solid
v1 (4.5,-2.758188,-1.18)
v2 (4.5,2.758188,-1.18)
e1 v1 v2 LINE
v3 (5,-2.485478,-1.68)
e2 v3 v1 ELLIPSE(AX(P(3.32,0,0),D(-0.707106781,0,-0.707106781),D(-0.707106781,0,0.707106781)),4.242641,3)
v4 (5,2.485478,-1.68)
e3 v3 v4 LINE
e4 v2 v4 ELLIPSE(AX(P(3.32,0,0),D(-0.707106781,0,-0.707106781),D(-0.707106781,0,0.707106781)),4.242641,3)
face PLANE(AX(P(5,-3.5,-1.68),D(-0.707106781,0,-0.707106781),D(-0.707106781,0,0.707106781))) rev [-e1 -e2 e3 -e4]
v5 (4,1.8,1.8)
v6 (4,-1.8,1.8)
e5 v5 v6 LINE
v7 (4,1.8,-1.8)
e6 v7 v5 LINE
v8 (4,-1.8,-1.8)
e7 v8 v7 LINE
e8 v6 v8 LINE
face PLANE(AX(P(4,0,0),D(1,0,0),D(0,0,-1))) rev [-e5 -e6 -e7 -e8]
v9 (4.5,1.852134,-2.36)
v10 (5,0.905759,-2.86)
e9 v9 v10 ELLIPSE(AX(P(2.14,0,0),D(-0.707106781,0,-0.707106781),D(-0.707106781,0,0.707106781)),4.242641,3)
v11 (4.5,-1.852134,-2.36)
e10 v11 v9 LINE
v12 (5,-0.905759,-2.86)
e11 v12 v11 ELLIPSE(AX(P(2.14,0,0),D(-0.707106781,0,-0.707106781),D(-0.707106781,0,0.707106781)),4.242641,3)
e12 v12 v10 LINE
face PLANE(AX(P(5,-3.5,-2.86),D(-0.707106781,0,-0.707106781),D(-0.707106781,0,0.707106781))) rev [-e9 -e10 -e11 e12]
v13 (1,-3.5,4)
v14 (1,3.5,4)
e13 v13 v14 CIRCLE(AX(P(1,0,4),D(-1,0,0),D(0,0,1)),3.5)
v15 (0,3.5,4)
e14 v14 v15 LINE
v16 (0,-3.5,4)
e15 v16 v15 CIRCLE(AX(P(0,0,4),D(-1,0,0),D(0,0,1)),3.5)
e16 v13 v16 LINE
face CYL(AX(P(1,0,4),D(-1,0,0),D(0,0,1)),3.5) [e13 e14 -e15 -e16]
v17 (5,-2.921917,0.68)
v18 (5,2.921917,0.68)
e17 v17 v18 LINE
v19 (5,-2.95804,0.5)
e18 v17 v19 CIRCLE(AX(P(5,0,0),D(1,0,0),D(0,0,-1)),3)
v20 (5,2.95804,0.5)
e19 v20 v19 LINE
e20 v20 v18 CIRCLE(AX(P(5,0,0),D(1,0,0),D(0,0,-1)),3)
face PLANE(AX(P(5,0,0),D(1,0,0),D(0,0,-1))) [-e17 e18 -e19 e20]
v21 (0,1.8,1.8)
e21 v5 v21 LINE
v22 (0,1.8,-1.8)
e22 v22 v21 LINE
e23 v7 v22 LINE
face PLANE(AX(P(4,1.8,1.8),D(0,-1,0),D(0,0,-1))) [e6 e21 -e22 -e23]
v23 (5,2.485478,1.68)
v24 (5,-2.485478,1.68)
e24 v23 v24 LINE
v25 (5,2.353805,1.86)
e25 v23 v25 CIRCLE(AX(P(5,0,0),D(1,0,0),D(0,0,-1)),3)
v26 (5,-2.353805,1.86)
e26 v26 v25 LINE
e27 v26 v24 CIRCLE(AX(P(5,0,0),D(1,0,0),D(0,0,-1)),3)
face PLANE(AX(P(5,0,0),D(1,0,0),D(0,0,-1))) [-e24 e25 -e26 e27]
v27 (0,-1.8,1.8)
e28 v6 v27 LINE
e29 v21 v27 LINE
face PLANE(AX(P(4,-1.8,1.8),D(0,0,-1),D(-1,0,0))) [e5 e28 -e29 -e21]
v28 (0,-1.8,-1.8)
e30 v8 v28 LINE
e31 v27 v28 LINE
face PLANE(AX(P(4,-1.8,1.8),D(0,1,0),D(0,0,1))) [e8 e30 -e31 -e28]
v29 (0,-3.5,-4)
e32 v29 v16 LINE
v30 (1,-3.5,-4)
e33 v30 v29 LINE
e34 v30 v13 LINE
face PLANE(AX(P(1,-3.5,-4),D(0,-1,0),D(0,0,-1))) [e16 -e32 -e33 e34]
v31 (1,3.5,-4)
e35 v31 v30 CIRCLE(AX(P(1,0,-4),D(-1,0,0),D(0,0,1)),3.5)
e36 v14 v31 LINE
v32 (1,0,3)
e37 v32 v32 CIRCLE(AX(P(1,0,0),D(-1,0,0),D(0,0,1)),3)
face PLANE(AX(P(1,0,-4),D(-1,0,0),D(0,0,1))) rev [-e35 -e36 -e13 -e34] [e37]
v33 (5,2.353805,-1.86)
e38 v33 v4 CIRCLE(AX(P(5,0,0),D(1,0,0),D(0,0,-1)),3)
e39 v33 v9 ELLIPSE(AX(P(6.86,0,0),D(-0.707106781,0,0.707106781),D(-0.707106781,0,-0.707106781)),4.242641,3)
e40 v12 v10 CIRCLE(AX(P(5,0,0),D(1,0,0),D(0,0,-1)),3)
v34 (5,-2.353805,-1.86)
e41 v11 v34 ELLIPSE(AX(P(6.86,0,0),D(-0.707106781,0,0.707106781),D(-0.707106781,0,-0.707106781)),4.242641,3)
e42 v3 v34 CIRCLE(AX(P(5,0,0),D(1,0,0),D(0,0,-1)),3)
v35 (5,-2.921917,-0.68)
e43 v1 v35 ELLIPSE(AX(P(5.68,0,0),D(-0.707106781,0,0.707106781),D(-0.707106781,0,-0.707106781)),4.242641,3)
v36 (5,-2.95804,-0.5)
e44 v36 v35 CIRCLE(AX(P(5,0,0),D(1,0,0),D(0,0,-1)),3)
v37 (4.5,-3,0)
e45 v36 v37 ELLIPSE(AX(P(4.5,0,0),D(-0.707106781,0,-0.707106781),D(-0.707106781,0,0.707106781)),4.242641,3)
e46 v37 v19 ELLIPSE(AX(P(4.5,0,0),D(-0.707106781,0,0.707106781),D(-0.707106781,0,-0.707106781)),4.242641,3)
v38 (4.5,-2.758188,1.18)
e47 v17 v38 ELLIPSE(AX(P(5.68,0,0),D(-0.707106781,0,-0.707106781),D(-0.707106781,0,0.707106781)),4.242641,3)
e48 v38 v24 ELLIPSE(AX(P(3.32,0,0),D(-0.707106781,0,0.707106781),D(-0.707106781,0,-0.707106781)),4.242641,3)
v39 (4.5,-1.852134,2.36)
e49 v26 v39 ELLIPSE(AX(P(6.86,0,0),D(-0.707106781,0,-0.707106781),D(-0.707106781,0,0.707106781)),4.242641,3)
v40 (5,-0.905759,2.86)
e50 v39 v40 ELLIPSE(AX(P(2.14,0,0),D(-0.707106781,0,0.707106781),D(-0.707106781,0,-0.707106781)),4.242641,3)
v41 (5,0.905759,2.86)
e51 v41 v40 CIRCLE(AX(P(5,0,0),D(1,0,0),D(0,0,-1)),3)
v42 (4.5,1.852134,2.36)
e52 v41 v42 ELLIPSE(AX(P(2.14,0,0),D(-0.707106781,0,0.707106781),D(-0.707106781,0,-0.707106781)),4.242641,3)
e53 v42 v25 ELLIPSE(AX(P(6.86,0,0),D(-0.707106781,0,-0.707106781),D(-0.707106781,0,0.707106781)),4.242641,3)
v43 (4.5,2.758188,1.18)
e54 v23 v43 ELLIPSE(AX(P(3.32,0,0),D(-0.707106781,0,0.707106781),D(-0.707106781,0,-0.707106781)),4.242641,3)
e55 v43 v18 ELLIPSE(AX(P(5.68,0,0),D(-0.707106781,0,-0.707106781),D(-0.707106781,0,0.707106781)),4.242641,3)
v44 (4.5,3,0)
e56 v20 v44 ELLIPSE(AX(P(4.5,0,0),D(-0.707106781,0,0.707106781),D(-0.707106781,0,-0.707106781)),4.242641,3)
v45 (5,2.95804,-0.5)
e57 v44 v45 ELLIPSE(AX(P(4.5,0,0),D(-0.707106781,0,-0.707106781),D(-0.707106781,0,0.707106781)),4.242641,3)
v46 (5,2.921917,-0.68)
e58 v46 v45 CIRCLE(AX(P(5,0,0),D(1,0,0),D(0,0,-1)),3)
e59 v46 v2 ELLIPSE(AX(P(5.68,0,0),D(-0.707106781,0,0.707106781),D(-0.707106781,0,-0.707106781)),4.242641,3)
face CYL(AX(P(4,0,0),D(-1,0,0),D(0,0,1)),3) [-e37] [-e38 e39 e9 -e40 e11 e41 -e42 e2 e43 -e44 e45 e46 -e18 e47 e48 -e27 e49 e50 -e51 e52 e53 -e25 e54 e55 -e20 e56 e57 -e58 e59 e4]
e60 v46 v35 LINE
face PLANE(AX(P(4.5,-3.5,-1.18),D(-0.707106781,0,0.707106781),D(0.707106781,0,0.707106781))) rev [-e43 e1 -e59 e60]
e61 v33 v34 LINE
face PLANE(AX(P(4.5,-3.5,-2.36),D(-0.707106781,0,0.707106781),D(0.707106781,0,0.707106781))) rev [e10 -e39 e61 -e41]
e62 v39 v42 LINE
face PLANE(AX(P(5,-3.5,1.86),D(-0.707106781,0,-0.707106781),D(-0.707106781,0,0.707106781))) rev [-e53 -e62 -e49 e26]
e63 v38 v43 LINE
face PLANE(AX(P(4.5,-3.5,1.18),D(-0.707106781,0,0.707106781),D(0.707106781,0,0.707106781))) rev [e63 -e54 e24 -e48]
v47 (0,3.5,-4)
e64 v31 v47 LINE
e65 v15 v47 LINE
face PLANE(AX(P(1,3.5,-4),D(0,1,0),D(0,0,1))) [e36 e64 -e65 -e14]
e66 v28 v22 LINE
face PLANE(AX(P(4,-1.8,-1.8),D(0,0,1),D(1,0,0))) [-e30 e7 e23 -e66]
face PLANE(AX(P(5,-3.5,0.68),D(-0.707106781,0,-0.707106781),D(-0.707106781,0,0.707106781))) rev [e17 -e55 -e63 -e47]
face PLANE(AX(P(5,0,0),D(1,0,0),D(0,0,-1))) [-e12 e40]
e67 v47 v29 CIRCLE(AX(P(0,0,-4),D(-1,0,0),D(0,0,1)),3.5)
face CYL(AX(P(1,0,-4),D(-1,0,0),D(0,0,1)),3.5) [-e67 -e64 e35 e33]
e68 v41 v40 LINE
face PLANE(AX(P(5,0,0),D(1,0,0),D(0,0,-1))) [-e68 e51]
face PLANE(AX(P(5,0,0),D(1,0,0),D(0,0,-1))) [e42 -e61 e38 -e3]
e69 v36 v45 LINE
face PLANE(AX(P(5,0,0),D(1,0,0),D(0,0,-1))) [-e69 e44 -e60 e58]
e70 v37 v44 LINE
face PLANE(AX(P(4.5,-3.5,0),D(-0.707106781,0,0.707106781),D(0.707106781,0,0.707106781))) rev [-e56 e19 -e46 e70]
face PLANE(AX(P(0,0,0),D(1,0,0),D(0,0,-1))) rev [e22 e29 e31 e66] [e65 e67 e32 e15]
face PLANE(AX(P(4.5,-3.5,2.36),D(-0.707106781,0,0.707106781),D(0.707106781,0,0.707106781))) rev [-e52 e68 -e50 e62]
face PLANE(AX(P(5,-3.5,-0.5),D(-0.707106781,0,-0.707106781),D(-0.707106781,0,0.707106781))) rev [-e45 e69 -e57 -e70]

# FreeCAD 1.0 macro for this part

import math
import FreeCAD as App
import Part
import Sketcher
Q = App.Units.Quantity


def add_polygon(sketch, points):
    """Adds a closed chain of lines whose ends are joined by coincident constraints."""
    first, n = sketch.GeometryCount, len(points)
    for a, b in zip(points, points[1:] + points[:1]):
        sketch.addGeometry(Part.LineSegment(App.Vector(*a, 0), App.Vector(*b, 0)), False)
    for i in range(n):
        sketch.addConstraint(Sketcher.Constraint("Coincident", first + i, 2, first + (i + 1) % n, 1))

doc = App.newDocument("Part")
params = doc.addObject("Spreadsheet::Sheet", "Params")
for row, (alias, value) in enumerate([
    ("sketch1_diameter", "6 mm"),
    ("sketch1_width", "3.6 mm"),
    ("pad1_length", "4 mm"),
    ("sketch2_radius", "3.5 mm"),
    ("sketch2_height", "8 mm"),
    ("sketch2_width", "3.6 mm"),
    ("pad2_length", "1 mm"),
    ("sketch3_diameter", "6 mm"),
    ("pad3_length", "1 mm"),
    ("sketch4_height", "1 mm"),
], start=1):
    params.set(f"A{row}", alias)
    params.set(f"B{row}", "=" + value)
    params.setAlias(f"B{row}", alias)

body = doc.addObject("PartDesign::Body", "Body")

sketch1 = body.newObject("Sketcher::SketchObject", "Sketch")
sketch1.AttachmentSupport = (doc.getObject("YZ_Plane"), [""])
sketch1.MapMode = "FlatFace"
sketch1.addGeometry(Part.Circle(App.Vector(0, 0, 0), App.Vector(0, 0, 1), 3), False)
add_polygon(sketch1, [(-1.8, -1.8), (-1.8, 1.8), (1.8, 1.8), (1.8, -1.8)])
sketch1.addConstraint(Sketcher.Constraint("Vertical", 1))
sketch1.addConstraint(Sketcher.Constraint("Horizontal", 2))
sketch1.addConstraint(Sketcher.Constraint("Vertical", 3))
sketch1.addConstraint(Sketcher.Constraint("Horizontal", 4))
sketch1.addConstraint(Sketcher.Constraint("Coincident", 0, 3, -1, 1))
sketch1.addConstraint(Sketcher.Constraint("Symmetric", 1, 2, 3, 2, -1, 1))
sketch1.addConstraint(Sketcher.Constraint("Equal", 4, 1))
sketch1.addConstraint(Sketcher.Constraint("Diameter", 0, Q("6 mm")))
sketch1.addConstraint(Sketcher.Constraint("DistanceX", 2, 1, 2, 2, Q("3.6 mm")))
sketch1.setExpression("Constraints[11]", "Params.sketch1_diameter")
sketch1.setExpression("Constraints[12]", "Params.sketch1_width")
pad1 = body.newObject("PartDesign::Pad", "Pad")
pad1.Profile = sketch1
pad1.setExpression("Length", "Params.pad1_length")

sketch2 = body.newObject("Sketcher::SketchObject", "Sketch001")
sketch2.AttachmentSupport = (doc.getObject("YZ_Plane"), [""])
sketch2.MapMode = "FlatFace"
sketch2.addGeometry(Part.LineSegment(App.Vector(3.5, 4, 0), App.Vector(3.5, -4, 0)), False)
sketch2.addGeometry(Part.ArcOfCircle(Part.Circle(App.Vector(0, -4, 0), App.Vector(0, 0, 1), 3.5), math.radians(180), math.radians(360)), False)
sketch2.addGeometry(Part.LineSegment(App.Vector(-3.5, -4, 0), App.Vector(-3.5, 4, 0)), False)
sketch2.addGeometry(Part.ArcOfCircle(Part.Circle(App.Vector(0, 4, 0), App.Vector(0, 0, 1), 3.5), math.radians(0), math.radians(180)), False)
add_polygon(sketch2, [(-1.8, -1.8), (1.8, -1.8), (1.8, 1.8), (-1.8, 1.8)])
sketch2.addConstraint(Sketcher.Constraint("Tangent", 0, 2, 1, 2))
sketch2.addConstraint(Sketcher.Constraint("Tangent", 1, 1, 2, 1))
sketch2.addConstraint(Sketcher.Constraint("Tangent", 2, 2, 3, 2))
sketch2.addConstraint(Sketcher.Constraint("Tangent", 3, 1, 0, 1))
sketch2.addConstraint(Sketcher.Constraint("Vertical", 0))
sketch2.addConstraint(Sketcher.Constraint("Vertical", 2))
sketch2.addConstraint(Sketcher.Constraint("Horizontal", 4))
sketch2.addConstraint(Sketcher.Constraint("Vertical", 5))
sketch2.addConstraint(Sketcher.Constraint("Horizontal", 6))
sketch2.addConstraint(Sketcher.Constraint("Vertical", 7))
sketch2.addConstraint(Sketcher.Constraint("Symmetric", 1, 3, 3, 3, -1, 1))
sketch2.addConstraint(Sketcher.Constraint("Symmetric", 4, 2, 6, 2, -1, 1))
sketch2.addConstraint(Sketcher.Constraint("Equal", 6, 5))
sketch2.addConstraint(Sketcher.Constraint("Radius", 1, Q("3.5 mm")))
sketch2.addConstraint(Sketcher.Constraint("DistanceY", 0, 2, 0, 1, Q("8 mm")))
sketch2.addConstraint(Sketcher.Constraint("DistanceX", 4, 1, 4, 2, Q("3.6 mm")))
sketch2.setExpression("Constraints[17]", "Params.sketch2_radius")
sketch2.setExpression("Constraints[18]", "Params.sketch2_height")
sketch2.setExpression("Constraints[19]", "Params.sketch2_width")
pad2 = body.newObject("PartDesign::Pad", "Pad001")
pad2.Profile = sketch2
pad2.setExpression("Length", "Params.pad2_length")

sketch3 = body.newObject("Sketcher::SketchObject", "Sketch002")
sketch3.AttachmentSupport = (doc.getObject("YZ_Plane"), [""])
sketch3.MapMode = "FlatFace"
sketch3.AttachmentOffset = App.Placement(App.Vector(0, 0, 4), App.Rotation())
sketch3.addGeometry(Part.Circle(App.Vector(0, 0, 0), App.Vector(0, 0, 1), 3), False)
sketch3.addConstraint(Sketcher.Constraint("Coincident", 0, 3, -1, 1))
sketch3.addConstraint(Sketcher.Constraint("Diameter", 0, Q("6 mm")))
sketch3.setExpression("Constraints[1]", "Params.sketch3_diameter")
pad3 = body.newObject("PartDesign::Pad", "Pad002")
pad3.Profile = sketch3
pad3.setExpression("Length", "Params.pad3_length")

sketch4 = body.newObject("Sketcher::SketchObject", "Sketch003")
sketch4.AttachmentSupport = (doc.getObject("XZ_Plane"), [""])
sketch4.MapMode = "FlatFace"
add_polygon(sketch4, [(5, -2.9), (4.5, -2.4), (5, -1.9)])
add_polygon(sketch4, [(5, -1.7), (4.5, -1.2), (5, -0.7)])
add_polygon(sketch4, [(5, -0.5), (4.5, 0), (5, 0.5)])
add_polygon(sketch4, [(5, 0.7), (4.5, 1.2), (5, 1.7)])
add_polygon(sketch4, [(5, 1.9), (4.5, 2.4), (5, 2.9)])
sketch4.addConstraint(Sketcher.Constraint("Vertical", 2))
sketch4.addConstraint(Sketcher.Constraint("Vertical", 5))
sketch4.addConstraint(Sketcher.Constraint("Vertical", 8))
sketch4.addConstraint(Sketcher.Constraint("Vertical", 11))
sketch4.addConstraint(Sketcher.Constraint("Vertical", 14))
sketch4.addConstraint(Sketcher.Constraint("Symmetric", 3, 2, 9, 2, -1))
sketch4.addConstraint(Sketcher.Constraint("Symmetric", 5, 2, 10, 2, -1))
sketch4.addConstraint(Sketcher.Constraint("Symmetric", 0, 2, 12, 2, -1))
sketch4.addConstraint(Sketcher.Constraint("Symmetric", 2, 2, 13, 2, -1))
sketch4.addConstraint(Sketcher.Constraint("PointOnObject", 6, 2, -1))
sketch4.addConstraint(Sketcher.Constraint("Perpendicular", 0, 1))
sketch4.addConstraint(Sketcher.Constraint("Perpendicular", 1, 3))
sketch4.addConstraint(Sketcher.Constraint("Perpendicular", 3, 4))
sketch4.addConstraint(Sketcher.Constraint("Perpendicular", 4, 6))
sketch4.addConstraint(Sketcher.Constraint("Perpendicular", 6, 7))
sketch4.addConstraint(Sketcher.Constraint("Perpendicular", 7, 9))
sketch4.addConstraint(Sketcher.Constraint("Perpendicular", 9, 10))
sketch4.addConstraint(Sketcher.Constraint("Perpendicular", 10, 12))
sketch4.addConstraint(Sketcher.Constraint("Vertical", 0, 2, 3, 2))
sketch4.addConstraint(Sketcher.Constraint("Vertical", 2, 2, 4, 2))
sketch4.addConstraint(Sketcher.Constraint("Vertical", 3, 2, 6, 2))
sketch4.addConstraint(Sketcher.Constraint("Vertical", 5, 2, 7, 2))
sketch4.addConstraint(Sketcher.Constraint("DistanceY", 2, 2, 2, 1, Q("1 mm")))
sketch4.addConstraint(Sketcher.Constraint("DistanceX", -1, 1, 1, 2, Q("5 mm")))
sketch4.addConstraint(Sketcher.Constraint("DistanceY", 0, 2, -1, 1, Q("2.36 mm")))
sketch4.addConstraint(Sketcher.Constraint("DistanceY", 3, 2, -1, 1, Q("1.18 mm")))
sketch4.setExpression("Constraints[37]", "Params.sketch4_height")
pocket1 = body.newObject("PartDesign::Pocket", "Pocket")
pocket1.Profile = sketch4
pocket1.Type = "ThroughAll"
pocket1.Midplane = True

doc.recompute()
